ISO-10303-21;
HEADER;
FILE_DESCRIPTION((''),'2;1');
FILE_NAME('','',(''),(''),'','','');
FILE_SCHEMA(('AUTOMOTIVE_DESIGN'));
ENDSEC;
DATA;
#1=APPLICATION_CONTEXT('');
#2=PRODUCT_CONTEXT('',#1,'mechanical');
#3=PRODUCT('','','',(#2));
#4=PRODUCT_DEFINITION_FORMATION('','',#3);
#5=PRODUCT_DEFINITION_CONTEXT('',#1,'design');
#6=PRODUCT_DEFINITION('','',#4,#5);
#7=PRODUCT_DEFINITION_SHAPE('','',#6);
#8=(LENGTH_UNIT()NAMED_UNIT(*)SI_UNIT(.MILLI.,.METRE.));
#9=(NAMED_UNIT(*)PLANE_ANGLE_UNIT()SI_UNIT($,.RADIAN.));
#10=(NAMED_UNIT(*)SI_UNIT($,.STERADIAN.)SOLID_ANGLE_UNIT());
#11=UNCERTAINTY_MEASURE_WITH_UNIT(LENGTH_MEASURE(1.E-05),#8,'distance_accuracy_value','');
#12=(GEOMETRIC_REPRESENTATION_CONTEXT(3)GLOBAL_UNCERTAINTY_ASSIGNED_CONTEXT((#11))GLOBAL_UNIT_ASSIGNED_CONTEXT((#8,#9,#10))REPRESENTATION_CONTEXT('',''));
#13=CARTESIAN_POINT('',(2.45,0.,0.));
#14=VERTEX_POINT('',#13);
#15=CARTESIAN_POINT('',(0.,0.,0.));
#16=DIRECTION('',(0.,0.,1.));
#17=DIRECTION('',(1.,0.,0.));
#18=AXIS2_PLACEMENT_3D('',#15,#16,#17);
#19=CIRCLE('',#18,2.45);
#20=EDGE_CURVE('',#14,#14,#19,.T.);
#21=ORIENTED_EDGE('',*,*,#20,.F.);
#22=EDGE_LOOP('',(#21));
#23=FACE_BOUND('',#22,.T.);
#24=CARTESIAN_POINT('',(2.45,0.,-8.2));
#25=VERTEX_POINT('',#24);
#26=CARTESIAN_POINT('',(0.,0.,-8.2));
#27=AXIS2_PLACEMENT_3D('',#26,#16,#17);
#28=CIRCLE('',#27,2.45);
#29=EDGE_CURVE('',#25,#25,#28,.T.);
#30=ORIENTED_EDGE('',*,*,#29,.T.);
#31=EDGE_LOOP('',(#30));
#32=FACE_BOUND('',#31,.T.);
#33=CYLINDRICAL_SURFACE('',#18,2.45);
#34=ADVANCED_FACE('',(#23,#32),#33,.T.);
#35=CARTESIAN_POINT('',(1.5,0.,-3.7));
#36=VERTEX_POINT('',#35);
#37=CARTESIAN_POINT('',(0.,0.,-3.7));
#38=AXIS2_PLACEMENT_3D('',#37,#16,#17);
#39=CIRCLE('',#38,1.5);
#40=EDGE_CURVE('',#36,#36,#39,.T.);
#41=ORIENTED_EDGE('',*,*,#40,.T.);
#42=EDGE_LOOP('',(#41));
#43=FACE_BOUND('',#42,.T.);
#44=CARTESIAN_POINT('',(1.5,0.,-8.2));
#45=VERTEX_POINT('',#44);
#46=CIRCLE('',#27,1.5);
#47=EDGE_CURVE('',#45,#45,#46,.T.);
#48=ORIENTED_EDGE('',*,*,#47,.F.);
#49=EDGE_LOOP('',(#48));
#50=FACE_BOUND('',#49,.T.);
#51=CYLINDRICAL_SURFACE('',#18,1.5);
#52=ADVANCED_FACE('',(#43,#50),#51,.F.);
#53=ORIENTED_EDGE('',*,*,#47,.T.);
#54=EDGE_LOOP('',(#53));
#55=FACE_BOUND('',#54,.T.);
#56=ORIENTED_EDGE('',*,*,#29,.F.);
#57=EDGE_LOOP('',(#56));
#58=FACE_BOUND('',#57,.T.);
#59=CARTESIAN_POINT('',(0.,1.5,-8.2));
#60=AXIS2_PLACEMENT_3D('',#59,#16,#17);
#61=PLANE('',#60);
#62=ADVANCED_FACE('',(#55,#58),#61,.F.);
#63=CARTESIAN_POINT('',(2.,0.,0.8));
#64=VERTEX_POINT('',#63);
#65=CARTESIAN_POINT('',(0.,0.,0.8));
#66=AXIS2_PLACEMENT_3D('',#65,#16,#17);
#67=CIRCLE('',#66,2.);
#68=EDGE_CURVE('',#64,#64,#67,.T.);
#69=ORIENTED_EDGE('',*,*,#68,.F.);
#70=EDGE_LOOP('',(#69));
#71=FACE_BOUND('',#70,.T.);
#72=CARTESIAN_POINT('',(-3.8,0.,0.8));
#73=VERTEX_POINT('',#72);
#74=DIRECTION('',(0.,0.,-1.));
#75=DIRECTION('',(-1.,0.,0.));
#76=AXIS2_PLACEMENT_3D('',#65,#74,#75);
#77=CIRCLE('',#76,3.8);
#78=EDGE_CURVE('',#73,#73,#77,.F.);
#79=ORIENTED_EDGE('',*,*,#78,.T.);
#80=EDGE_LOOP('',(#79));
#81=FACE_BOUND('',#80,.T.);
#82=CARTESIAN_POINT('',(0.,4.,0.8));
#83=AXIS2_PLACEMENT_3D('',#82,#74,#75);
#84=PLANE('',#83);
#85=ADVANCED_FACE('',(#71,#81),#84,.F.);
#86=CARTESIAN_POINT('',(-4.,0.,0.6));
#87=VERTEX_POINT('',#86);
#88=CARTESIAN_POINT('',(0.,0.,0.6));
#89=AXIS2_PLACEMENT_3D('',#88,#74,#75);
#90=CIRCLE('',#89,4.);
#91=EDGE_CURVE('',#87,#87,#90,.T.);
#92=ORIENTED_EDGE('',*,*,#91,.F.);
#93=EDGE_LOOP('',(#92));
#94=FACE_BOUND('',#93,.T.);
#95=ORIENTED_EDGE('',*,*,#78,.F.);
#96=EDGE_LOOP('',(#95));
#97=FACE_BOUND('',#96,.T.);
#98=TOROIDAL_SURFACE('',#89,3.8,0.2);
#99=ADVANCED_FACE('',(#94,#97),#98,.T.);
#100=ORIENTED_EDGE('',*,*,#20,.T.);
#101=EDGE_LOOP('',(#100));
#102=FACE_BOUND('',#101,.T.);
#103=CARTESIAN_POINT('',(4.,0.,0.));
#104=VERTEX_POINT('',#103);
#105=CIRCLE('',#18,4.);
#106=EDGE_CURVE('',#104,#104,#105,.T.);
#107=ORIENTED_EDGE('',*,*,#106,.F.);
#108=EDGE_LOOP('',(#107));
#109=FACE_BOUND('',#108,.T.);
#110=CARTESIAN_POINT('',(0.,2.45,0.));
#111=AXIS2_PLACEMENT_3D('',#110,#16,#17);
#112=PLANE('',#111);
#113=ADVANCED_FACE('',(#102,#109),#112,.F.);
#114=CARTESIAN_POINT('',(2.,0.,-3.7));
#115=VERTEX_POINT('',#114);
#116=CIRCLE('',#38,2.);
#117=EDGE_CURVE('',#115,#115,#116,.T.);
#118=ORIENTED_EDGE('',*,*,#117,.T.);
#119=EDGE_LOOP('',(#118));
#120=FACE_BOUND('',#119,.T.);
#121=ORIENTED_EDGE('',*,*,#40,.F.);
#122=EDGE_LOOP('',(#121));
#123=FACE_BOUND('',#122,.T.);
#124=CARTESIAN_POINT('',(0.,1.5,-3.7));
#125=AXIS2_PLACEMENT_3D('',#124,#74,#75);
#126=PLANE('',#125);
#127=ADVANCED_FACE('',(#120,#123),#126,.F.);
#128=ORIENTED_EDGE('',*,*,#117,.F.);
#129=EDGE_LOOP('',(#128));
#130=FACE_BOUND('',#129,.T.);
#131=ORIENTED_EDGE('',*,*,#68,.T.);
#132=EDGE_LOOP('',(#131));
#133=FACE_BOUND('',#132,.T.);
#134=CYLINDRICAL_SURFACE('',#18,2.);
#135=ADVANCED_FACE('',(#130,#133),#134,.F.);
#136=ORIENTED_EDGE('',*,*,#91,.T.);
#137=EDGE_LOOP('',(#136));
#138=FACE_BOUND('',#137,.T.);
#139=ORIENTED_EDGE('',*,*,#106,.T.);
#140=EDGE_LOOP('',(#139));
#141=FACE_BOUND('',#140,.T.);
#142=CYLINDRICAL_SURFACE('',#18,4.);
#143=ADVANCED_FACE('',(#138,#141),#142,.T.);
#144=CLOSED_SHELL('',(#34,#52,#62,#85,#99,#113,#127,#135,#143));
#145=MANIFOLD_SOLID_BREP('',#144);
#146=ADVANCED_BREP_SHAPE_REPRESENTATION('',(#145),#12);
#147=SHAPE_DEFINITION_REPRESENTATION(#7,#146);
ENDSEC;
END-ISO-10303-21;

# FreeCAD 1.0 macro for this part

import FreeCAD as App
import Part
import Sketcher
Q = App.Units.Quantity


def edges_at(feature, points):
    """Names of the edges that pass closest to the given points."""
    edges = feature.Shape.Edges
    near = lambda p: min(range(len(edges)), key=lambda i: edges[i].distToShape(Part.Vertex(*p))[0])
    return sorted({f"Edge{near(p) + 1}" for p in points})

doc = App.newDocument("Part")
body = doc.addObject("PartDesign::Body", "Body")

# Sketch on YZ plane
sketch1 = doc.addObject("Sketcher::SketchObject", "Sketch")
body.addObject(sketch1)
sketch1.AttachmentSupport = (doc.YZ_Plane, [""])
sketch1.MapMode = "FlatFace"
sketch1.addGeometry(Part.LineSegment(App.Vector(2.5, 0, 0), App.Vector(4, 0, 0)), False)
sketch1.addGeometry(Part.LineSegment(App.Vector(4, 0, 0), App.Vector(4, 0.8, 0)), False)
sketch1.addGeometry(Part.LineSegment(App.Vector(4, 0.8, 0), App.Vector(2, 0.8, 0)), False)
sketch1.addGeometry(Part.LineSegment(App.Vector(2, 0.8, 0), App.Vector(2, -3.7, 0)), False)
sketch1.addGeometry(Part.LineSegment(App.Vector(2, -3.7, 0), App.Vector(1.5, -3.7, 0)), False)
sketch1.addGeometry(Part.LineSegment(App.Vector(1.5, -3.7, 0), App.Vector(1.5, -8.2, 0)), False)
sketch1.addGeometry(Part.LineSegment(App.Vector(1.5, -8.2, 0), App.Vector(2.5, -8.2, 0)), False)
sketch1.addGeometry(Part.LineSegment(App.Vector(2.5, -8.2, 0), App.Vector(2.5, 0, 0)), False)
sketch1.addConstraint(Sketcher.Constraint("Coincident", 0, 2, 1, 1))
sketch1.addConstraint(Sketcher.Constraint("Coincident", 1, 2, 2, 1))
sketch1.addConstraint(Sketcher.Constraint("Coincident", 2, 2, 3, 1))
sketch1.addConstraint(Sketcher.Constraint("Coincident", 3, 2, 4, 1))
sketch1.addConstraint(Sketcher.Constraint("Coincident", 4, 2, 5, 1))
sketch1.addConstraint(Sketcher.Constraint("Coincident", 5, 2, 6, 1))
sketch1.addConstraint(Sketcher.Constraint("Coincident", 6, 2, 7, 1))
sketch1.addConstraint(Sketcher.Constraint("Coincident", 7, 2, 0, 1))
sketch1.addConstraint(Sketcher.Constraint("Horizontal", 0))
sketch1.addConstraint(Sketcher.Constraint("Vertical", 1))
sketch1.addConstraint(Sketcher.Constraint("Horizontal", 2))
sketch1.addConstraint(Sketcher.Constraint("Vertical", 3))
sketch1.addConstraint(Sketcher.Constraint("Horizontal", 4))
sketch1.addConstraint(Sketcher.Constraint("Vertical", 5))
sketch1.addConstraint(Sketcher.Constraint("Horizontal", 6))
sketch1.addConstraint(Sketcher.Constraint("Vertical", 7))
sketch1.addConstraint(Sketcher.Constraint("PointOnObject", 0, 2, -1))
sketch1.addConstraint(Sketcher.Constraint("Equal", 3, 5))
sketch1.addConstraint(Sketcher.Constraint("DistanceX", 2, 2, 2, 1, Q("2 mm")))
sketch1.addConstraint(Sketcher.Constraint("DistanceX", 4, 2, 4, 1, Q("0.5 mm")))
sketch1.addConstraint(Sketcher.Constraint("DistanceY", 1, 1, 1, 2, Q("0.8 mm")))
sketch1.addConstraint(Sketcher.Constraint("DistanceY", 3, 2, 3, 1, Q("4.5 mm")))
sketch1.addConstraint(Sketcher.Constraint("DistanceX", -1, 1, 0, 2, Q("4 mm")))
sketch1.addConstraint(Sketcher.Constraint("DistanceX", 0, 1, 0, 2, Q("1.55 mm")))
revolution = doc.addObject("PartDesign::Revolution", "Revolution")
body.addObject(revolution)
revolution.Profile = sketch1
revolution.ReferenceAxis = (sketch1, ["V_Axis"])
revolution.Angle = 360
doc.recompute()

fillet = doc.addObject("PartDesign::Fillet", "Fillet")
body.addObject(fillet)
fillet.Base = (revolution, edges_at(revolution, [(-4, 0, 0.8)]))
fillet.Radius = 0.2

doc.recompute()
